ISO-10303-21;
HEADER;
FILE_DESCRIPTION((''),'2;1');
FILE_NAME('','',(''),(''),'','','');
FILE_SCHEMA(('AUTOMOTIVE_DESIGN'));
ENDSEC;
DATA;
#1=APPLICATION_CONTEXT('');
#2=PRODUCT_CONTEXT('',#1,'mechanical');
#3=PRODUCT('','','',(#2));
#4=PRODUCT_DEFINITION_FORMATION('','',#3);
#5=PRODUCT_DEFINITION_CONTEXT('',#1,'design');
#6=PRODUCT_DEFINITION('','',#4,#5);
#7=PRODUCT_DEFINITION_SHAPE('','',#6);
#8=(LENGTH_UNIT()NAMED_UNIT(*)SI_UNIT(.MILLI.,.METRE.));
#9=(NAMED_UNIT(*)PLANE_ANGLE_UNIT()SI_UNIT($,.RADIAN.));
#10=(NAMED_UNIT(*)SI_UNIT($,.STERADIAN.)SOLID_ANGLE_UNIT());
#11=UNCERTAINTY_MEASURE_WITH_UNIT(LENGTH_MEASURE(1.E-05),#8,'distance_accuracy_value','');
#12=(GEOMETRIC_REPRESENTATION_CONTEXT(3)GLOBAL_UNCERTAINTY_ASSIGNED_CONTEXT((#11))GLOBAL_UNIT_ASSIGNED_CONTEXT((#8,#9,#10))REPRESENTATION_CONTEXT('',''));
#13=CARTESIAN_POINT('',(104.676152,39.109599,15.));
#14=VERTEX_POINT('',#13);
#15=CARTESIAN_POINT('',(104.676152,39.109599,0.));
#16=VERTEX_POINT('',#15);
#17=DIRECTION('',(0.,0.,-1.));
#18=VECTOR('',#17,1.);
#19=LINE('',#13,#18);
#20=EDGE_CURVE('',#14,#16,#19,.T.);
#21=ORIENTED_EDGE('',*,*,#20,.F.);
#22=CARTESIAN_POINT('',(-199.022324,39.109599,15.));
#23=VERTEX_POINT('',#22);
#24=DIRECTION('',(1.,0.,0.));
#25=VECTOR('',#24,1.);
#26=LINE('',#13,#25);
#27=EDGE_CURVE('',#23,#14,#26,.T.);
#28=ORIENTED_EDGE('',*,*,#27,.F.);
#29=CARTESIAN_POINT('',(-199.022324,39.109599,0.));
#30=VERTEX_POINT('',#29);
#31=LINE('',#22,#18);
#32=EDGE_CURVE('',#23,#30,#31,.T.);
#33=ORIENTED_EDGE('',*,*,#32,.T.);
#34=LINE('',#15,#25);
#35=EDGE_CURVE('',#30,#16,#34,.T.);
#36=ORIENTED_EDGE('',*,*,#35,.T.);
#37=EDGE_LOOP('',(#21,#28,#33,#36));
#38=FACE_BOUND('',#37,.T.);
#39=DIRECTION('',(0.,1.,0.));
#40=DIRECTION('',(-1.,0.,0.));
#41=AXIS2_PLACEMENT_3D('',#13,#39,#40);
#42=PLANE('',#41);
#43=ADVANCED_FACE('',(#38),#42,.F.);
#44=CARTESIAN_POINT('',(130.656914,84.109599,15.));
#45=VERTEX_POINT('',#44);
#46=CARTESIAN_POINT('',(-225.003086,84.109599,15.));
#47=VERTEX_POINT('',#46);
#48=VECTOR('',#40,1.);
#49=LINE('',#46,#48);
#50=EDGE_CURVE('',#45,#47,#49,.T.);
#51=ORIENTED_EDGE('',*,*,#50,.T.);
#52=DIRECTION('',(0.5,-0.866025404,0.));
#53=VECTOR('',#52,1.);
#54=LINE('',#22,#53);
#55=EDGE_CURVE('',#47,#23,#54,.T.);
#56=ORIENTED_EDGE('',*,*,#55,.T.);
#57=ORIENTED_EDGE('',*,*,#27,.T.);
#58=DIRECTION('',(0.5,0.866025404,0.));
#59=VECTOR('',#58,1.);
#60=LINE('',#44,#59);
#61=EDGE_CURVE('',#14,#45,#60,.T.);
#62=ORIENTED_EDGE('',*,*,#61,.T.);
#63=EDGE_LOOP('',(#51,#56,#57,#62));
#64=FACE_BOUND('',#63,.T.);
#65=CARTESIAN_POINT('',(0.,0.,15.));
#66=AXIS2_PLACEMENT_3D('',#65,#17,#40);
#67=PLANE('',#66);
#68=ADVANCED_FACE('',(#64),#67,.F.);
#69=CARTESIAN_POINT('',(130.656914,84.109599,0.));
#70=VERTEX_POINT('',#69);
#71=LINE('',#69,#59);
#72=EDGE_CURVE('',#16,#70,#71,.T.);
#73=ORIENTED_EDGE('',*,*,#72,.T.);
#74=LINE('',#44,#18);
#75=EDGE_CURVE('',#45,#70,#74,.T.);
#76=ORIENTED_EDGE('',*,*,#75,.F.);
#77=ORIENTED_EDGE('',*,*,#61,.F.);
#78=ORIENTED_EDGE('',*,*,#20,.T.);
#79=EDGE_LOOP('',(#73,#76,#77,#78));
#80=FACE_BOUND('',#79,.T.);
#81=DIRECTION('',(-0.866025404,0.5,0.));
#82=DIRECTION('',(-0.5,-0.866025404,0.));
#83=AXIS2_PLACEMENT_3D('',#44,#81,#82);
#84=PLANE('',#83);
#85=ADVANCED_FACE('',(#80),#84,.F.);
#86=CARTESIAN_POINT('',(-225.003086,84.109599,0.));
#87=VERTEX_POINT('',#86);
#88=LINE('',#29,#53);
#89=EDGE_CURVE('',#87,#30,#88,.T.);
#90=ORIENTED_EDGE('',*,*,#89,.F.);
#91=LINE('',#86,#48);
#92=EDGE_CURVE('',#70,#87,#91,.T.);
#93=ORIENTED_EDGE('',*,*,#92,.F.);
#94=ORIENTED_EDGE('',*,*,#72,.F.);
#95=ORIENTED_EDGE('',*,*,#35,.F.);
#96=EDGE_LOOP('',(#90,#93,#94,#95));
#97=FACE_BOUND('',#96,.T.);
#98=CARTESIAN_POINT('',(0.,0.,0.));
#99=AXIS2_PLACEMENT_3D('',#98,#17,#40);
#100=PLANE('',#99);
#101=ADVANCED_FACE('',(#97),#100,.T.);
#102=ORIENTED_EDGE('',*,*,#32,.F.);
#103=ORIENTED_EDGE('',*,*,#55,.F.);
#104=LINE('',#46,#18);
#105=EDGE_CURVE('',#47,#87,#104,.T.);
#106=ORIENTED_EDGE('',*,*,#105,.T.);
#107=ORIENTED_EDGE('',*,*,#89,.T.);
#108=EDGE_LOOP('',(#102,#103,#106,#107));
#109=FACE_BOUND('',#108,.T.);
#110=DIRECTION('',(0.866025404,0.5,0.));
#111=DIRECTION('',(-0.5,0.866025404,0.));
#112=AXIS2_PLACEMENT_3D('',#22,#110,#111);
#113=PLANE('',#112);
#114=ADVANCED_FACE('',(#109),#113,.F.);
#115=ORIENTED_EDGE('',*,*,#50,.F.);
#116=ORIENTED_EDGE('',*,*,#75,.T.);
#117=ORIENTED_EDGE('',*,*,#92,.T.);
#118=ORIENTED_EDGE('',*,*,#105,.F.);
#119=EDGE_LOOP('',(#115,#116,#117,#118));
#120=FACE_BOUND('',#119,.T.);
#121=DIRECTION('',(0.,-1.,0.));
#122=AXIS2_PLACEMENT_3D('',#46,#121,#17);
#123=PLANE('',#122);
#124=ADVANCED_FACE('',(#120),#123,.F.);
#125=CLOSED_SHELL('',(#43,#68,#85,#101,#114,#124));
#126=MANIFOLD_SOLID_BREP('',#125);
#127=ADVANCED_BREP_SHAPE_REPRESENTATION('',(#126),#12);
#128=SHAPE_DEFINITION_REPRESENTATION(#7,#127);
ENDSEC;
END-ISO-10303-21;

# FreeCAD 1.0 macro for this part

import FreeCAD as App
import Part
import Sketcher
Q = App.Units.Quantity

doc = App.newDocument("Part")
body = doc.addObject("PartDesign::Body", "Body")

# Sketch on XY plane
sketch1 = body.newObject("Sketcher::SketchObject", "Sketch")
sketch1.AttachmentSupport = (doc.getObject("XY_Plane"), [""])
sketch1.MapMode = "FlatFace"
sketch1.addGeometry([
    Part.LineSegment(App.Vector(131, 84, 0), App.Vector(-225, 84, 0)),
    Part.LineSegment(App.Vector(-225, 84, 0), App.Vector(-199, 39, 0)),
    Part.LineSegment(App.Vector(-199, 39, 0), App.Vector(105, 39, 0)),
    Part.LineSegment(App.Vector(105, 39, 0), App.Vector(131, 84, 0)),
], False)
sketch1.addConstraint([
    Sketcher.Constraint("Coincident", 0, 2, 1, 1),
    Sketcher.Constraint("Coincident", 1, 2, 2, 1),
    Sketcher.Constraint("Coincident", 2, 2, 3, 1),
    Sketcher.Constraint("Coincident", 3, 2, 0, 1),
    Sketcher.Constraint("Horizontal", 0),
    Sketcher.Constraint("Horizontal", 2),
    Sketcher.Constraint("Equal", 1, 3),
    Sketcher.Constraint("Angle", 1, Q("-60 deg")),
    Sketcher.Constraint("DistanceY", 1, 2, 0, 2, 45.0),
    Sketcher.Constraint("DistanceX", 0, 2, 0, 1, 355.66),
    Sketcher.Constraint("DistanceY", -1, 1, 0, 2, 84.109599),
    Sketcher.Constraint("DistanceX", 0, 2, -1, 1, 225.003086),
])
pad1 = body.newObject("PartDesign::Pad", "Pad")
pad1.Profile = sketch1
pad1.Length = 15

doc.recompute()
